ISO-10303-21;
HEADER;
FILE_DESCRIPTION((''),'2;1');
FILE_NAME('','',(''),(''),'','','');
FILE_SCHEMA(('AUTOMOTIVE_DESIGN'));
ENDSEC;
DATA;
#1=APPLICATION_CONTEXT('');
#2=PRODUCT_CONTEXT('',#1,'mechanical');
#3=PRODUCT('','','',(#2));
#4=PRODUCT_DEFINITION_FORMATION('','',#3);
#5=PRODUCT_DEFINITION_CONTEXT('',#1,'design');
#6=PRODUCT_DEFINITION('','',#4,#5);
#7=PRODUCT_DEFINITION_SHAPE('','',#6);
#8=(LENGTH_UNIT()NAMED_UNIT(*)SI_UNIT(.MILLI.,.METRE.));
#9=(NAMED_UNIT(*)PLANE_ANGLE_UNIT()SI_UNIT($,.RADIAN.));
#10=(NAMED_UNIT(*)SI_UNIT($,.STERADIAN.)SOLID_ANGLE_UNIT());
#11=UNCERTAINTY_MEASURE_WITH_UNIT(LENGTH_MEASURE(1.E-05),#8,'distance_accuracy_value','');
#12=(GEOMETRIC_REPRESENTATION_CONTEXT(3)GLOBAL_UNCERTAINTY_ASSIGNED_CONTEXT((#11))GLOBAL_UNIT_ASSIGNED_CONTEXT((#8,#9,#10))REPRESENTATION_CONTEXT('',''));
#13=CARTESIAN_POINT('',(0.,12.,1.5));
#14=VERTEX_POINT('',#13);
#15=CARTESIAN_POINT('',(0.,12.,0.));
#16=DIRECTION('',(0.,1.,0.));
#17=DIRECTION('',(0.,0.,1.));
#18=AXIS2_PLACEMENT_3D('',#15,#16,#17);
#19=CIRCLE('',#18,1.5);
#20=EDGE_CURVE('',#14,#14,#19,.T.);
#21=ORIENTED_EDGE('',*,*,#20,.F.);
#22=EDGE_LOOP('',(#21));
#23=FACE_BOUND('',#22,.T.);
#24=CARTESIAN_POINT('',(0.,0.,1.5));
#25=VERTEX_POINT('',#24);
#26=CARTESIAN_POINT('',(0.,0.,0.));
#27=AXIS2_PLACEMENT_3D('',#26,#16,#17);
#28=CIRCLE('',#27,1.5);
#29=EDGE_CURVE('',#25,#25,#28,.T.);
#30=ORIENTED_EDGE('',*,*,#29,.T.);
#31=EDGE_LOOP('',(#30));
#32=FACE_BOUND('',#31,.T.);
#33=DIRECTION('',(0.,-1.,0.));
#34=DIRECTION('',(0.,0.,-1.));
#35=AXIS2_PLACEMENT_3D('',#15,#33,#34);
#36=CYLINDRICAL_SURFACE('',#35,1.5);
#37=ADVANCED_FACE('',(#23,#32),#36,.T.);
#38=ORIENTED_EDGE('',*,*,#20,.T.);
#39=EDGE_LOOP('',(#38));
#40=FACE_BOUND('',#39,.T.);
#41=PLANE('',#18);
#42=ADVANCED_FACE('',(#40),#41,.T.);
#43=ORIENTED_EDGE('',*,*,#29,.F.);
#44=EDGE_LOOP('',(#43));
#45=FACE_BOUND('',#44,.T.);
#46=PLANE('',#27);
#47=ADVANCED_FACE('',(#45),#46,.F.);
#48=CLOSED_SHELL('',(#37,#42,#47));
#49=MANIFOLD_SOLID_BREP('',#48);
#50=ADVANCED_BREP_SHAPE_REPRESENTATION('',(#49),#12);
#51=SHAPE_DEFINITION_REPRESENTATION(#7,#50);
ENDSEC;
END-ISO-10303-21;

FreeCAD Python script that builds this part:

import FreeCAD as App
import Part
import Sketcher

doc = App.newDocument("Part")
body = doc.addObject("PartDesign::Body", "Body")

sketch1 = body.newObject("Sketcher::SketchObject", "Sketch")
sketch1.AttachmentSupport = (doc.getObject("XZ_Plane"), [""])
sketch1.MapMode = "FlatFace"
sketch1.addGeometry(Part.Circle(App.Vector(0, 0, 0), App.Vector(0, 0, 1), 1.5), False)
sketch1.addConstraint(Sketcher.Constraint("Coincident", 0, 3, -1, 1))
sketch1.addConstraint(Sketcher.Constraint("Diameter", 0, 3.0))
pad1 = body.newObject("PartDesign::Pad", "Pad")
pad1.Profile = sketch1
pad1.Length = 12
pad1.Reversed = True

doc.recompute()
